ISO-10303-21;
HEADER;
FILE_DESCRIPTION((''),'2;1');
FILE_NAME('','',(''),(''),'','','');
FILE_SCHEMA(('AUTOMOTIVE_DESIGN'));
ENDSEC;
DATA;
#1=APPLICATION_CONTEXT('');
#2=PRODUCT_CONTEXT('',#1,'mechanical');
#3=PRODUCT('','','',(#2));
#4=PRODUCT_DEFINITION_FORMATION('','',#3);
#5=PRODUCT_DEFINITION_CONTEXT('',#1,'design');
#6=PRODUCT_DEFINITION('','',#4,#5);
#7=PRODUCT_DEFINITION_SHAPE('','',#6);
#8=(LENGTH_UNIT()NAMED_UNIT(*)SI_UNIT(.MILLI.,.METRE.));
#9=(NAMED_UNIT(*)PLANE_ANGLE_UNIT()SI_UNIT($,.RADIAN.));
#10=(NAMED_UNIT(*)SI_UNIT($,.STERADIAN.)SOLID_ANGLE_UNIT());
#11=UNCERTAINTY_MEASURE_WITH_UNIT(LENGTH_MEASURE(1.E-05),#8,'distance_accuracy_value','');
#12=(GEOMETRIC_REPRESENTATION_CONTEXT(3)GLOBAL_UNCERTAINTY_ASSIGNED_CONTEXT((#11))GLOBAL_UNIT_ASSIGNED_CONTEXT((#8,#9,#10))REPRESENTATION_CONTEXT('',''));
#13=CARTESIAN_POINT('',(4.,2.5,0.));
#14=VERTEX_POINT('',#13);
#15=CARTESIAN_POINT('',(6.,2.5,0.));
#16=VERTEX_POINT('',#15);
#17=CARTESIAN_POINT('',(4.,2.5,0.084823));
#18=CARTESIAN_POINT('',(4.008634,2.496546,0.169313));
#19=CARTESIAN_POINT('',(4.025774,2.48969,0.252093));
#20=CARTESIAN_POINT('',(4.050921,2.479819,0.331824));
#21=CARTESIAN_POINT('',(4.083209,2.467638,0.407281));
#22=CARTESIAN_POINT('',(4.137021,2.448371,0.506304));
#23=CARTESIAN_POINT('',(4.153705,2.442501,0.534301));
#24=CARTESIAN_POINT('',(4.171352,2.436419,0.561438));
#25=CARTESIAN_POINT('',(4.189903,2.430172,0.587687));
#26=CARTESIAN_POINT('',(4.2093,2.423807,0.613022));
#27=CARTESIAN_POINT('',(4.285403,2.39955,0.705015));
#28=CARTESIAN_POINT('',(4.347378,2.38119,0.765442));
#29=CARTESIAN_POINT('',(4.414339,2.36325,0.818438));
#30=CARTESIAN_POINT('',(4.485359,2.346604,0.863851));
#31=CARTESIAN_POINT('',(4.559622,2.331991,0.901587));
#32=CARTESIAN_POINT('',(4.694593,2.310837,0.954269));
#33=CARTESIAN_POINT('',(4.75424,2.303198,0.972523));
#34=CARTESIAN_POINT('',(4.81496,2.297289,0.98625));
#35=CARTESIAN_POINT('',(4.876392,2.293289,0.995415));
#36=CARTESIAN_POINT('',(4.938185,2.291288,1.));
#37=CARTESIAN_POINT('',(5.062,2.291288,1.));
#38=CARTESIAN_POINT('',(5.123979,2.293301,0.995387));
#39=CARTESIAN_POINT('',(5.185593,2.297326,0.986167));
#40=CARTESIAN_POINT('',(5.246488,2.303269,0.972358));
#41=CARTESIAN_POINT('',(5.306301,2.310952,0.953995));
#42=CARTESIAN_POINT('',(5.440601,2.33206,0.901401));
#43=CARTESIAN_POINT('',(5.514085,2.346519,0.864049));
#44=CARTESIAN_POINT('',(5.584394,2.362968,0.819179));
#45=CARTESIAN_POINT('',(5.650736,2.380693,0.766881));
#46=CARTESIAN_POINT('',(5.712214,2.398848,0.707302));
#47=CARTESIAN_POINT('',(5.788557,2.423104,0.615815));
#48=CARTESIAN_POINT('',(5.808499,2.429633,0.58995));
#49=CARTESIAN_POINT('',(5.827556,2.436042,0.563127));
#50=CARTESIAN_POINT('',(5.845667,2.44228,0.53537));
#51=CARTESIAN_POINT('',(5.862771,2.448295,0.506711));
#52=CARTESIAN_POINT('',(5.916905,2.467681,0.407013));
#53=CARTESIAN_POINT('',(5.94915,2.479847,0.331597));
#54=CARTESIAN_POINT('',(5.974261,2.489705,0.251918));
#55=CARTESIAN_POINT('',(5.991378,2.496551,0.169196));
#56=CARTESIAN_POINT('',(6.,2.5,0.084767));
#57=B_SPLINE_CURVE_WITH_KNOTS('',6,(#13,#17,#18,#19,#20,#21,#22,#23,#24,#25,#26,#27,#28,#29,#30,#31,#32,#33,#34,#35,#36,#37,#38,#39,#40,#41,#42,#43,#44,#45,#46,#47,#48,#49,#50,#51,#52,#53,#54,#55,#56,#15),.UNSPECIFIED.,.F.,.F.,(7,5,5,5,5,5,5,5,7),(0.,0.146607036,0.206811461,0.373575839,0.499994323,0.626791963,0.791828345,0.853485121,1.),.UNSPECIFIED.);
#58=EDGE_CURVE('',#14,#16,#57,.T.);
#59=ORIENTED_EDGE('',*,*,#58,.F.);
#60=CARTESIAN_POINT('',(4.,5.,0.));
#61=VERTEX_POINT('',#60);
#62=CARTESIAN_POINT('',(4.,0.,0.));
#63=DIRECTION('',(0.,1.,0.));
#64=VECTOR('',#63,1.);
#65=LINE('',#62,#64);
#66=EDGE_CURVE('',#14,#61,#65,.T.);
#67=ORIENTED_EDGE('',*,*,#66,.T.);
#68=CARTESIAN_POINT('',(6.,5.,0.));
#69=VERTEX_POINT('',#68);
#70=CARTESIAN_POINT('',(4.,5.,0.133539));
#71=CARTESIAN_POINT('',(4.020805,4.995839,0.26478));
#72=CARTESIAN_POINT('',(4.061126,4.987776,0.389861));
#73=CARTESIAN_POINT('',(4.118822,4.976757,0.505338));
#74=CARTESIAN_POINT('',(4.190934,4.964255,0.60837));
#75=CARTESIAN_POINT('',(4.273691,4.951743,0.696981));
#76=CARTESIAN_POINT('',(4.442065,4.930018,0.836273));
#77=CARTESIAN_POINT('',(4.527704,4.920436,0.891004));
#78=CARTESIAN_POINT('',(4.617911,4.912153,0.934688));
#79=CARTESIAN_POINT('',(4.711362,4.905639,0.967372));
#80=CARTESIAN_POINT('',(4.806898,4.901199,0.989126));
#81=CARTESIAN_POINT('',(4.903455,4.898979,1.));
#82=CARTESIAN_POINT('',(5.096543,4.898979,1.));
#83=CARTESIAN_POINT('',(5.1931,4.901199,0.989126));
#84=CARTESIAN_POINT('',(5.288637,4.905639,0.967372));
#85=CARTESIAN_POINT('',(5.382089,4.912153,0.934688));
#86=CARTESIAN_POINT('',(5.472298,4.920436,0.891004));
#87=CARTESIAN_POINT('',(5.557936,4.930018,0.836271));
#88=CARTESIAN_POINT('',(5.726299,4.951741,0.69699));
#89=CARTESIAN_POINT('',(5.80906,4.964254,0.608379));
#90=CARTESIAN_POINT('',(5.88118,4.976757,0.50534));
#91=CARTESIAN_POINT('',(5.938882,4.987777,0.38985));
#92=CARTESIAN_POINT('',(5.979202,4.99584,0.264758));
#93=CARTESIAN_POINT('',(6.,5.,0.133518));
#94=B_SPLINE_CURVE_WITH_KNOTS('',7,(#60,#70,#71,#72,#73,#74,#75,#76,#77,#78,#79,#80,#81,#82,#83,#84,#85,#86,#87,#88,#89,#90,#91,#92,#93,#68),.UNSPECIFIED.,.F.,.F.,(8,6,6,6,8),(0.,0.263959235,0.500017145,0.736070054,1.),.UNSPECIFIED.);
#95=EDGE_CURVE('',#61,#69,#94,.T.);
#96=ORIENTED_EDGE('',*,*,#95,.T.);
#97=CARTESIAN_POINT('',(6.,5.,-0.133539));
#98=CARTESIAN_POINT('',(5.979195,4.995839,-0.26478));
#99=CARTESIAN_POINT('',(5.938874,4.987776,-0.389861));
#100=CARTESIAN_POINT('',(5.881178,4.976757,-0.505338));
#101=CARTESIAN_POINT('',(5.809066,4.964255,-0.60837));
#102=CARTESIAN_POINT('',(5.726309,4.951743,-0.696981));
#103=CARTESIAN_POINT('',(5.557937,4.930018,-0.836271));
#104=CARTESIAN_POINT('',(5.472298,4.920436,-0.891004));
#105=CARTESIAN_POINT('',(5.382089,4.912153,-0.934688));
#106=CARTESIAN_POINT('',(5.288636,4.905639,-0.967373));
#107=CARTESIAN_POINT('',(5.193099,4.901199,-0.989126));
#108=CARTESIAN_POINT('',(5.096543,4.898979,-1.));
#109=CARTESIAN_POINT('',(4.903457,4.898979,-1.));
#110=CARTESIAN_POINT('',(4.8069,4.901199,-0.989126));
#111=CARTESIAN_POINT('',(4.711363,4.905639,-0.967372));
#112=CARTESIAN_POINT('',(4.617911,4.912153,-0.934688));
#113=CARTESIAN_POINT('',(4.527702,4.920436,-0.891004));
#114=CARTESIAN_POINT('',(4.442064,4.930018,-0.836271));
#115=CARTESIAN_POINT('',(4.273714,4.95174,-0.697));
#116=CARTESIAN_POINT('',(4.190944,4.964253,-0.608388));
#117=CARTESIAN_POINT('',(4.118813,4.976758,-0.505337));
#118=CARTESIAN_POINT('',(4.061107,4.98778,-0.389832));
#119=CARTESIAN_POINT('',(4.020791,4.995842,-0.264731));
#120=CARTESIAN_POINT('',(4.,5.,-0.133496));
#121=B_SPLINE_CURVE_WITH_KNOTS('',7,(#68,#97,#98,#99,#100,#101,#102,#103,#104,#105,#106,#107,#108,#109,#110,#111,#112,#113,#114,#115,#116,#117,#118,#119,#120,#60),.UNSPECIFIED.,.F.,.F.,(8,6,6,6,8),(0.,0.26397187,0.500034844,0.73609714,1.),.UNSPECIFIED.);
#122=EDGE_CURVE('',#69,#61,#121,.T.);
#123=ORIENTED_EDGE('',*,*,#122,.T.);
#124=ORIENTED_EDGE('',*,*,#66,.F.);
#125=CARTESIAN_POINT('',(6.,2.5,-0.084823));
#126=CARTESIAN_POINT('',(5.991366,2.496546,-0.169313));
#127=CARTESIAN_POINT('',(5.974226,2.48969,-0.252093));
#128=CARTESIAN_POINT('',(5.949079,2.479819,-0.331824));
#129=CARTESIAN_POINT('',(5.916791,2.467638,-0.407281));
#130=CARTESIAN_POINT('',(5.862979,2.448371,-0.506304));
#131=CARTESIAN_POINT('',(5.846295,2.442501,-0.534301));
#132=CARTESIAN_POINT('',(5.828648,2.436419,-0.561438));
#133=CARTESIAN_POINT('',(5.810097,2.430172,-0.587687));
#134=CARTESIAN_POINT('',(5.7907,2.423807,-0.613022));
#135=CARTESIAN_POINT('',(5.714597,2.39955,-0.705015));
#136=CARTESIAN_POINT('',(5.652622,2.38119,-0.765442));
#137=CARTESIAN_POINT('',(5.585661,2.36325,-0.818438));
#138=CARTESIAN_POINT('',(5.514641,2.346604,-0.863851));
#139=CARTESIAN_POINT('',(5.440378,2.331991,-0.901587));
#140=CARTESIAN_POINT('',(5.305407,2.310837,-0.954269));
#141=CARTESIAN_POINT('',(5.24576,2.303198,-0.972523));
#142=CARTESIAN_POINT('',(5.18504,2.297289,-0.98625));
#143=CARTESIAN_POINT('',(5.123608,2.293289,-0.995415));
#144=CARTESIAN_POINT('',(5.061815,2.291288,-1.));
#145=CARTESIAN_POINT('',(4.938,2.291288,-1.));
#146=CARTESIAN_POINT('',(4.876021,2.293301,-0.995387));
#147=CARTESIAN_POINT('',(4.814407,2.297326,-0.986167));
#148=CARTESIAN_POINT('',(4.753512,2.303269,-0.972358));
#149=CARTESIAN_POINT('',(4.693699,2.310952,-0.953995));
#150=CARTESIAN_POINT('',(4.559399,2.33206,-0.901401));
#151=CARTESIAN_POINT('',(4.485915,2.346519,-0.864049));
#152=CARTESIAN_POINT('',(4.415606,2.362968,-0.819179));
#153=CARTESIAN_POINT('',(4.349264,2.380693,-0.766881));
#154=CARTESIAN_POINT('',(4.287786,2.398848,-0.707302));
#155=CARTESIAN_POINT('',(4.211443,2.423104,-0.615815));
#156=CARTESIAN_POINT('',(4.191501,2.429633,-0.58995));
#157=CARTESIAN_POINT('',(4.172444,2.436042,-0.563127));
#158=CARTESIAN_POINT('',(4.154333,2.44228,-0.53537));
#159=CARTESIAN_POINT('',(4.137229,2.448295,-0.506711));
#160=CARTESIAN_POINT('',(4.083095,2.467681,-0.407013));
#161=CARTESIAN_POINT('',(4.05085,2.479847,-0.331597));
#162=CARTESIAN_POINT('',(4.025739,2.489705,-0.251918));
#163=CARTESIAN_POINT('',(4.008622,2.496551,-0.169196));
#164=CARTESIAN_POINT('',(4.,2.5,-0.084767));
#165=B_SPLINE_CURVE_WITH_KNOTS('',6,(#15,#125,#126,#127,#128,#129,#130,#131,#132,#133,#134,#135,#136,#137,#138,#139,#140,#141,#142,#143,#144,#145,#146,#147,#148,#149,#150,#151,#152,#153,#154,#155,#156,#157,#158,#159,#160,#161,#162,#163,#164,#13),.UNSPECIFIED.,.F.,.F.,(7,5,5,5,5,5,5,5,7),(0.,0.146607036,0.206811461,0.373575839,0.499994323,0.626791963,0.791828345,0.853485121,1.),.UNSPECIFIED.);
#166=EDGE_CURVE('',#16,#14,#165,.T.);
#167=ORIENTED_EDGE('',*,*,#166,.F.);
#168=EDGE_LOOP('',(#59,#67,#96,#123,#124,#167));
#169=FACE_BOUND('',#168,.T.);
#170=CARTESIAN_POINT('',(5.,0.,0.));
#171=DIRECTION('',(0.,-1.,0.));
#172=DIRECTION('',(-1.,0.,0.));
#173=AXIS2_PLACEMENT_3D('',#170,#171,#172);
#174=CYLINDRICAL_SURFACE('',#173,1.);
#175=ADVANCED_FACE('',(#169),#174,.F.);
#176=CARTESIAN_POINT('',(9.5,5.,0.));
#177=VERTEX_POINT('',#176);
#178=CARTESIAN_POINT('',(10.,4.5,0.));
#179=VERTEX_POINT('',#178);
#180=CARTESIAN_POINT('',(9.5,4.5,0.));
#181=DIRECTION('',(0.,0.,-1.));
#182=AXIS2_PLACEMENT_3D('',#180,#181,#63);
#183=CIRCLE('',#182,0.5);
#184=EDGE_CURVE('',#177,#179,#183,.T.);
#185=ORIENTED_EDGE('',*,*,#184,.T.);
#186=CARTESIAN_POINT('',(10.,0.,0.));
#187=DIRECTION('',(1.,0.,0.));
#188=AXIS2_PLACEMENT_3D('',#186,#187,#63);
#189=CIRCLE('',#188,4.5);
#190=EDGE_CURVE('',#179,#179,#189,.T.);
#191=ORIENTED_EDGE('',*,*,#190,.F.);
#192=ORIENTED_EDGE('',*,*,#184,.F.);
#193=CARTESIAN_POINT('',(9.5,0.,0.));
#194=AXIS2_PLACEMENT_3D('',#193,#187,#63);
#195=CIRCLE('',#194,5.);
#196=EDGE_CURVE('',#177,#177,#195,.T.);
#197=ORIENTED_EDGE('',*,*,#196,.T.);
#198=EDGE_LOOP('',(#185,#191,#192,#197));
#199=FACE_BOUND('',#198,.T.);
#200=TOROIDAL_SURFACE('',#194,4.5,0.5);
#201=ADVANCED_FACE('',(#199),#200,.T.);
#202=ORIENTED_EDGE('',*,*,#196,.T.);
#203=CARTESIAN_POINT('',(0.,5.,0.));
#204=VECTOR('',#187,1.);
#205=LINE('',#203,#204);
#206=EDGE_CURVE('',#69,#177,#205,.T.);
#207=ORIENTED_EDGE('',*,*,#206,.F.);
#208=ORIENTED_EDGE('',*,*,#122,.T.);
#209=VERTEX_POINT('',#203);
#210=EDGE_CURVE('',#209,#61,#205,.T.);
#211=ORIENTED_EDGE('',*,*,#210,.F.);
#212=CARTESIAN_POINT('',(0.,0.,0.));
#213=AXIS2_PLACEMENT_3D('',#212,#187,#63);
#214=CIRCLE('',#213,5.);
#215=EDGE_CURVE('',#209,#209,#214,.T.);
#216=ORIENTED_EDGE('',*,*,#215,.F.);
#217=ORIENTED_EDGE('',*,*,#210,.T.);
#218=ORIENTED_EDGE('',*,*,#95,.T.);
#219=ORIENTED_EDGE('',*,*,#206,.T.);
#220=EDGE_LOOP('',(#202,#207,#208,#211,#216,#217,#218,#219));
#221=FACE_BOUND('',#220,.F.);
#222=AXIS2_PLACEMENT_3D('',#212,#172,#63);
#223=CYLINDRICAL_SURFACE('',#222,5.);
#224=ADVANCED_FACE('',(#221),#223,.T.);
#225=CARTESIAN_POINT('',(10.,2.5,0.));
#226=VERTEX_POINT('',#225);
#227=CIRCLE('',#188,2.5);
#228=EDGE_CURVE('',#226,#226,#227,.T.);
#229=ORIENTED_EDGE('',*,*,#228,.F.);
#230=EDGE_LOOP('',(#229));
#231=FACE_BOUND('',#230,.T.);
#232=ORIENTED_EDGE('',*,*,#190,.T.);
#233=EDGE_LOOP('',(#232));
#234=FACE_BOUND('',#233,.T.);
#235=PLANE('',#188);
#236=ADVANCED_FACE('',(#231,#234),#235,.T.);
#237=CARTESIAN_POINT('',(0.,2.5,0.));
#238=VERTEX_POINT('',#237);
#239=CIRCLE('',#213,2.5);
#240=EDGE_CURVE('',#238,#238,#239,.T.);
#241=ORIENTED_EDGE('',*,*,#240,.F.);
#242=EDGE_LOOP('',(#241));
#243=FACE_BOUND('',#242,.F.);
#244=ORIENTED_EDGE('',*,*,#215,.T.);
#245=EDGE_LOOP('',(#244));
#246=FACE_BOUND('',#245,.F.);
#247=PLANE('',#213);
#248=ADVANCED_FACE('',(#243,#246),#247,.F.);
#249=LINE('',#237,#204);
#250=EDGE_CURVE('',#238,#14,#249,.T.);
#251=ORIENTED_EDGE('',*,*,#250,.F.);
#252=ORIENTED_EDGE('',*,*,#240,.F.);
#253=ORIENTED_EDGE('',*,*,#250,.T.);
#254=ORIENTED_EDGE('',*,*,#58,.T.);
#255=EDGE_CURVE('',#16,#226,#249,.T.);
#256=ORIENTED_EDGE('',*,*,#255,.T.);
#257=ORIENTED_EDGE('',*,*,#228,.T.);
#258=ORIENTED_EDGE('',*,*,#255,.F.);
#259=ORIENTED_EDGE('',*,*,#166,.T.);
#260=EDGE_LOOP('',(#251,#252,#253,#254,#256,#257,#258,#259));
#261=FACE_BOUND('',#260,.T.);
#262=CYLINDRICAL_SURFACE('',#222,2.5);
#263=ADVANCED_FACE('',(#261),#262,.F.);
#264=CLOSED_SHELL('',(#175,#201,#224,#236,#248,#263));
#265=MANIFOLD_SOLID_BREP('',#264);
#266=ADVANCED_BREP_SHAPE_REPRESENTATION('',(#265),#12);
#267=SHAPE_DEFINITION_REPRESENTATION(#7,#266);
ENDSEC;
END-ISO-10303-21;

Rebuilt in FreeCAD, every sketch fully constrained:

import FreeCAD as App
import Part
import Sketcher

V = App.Vector


def edges_at(feature, points):
    """Names of the edges that pass closest to the given points."""
    edges = feature.Shape.Edges
    near = lambda p: min(range(len(edges)), key=lambda i: edges[i].distToShape(Part.Vertex(*p))[0])
    return sorted({f"Edge{near(p) + 1}" for p in points})

doc = App.newDocument("Part")
params = doc.addObject("Spreadsheet::Sheet", "Params")
for row, (alias, value) in enumerate([
    ("sketch1_diameter", "10 mm"),
    ("sketch1_diameter2", "5 mm"),
    ("pad1_length", "10 mm"),
    ("sketch2_diameter", "2 mm"),
    ("pocket1_length", "10 mm"),
    ("fillet_radius", "0.5 mm"),
], start=1):
    params.set(f"A{row}", alias)
    params.set(f"B{row}", "=" + value)
    params.setAlias(f"B{row}", alias)

body = doc.addObject("PartDesign::Body", "Body")

sketch1 = doc.addObject("Sketcher::SketchObject", "Sketch")
body.addObject(sketch1)
sketch1.AttachmentSupport = (doc.YZ_Plane, [""])
sketch1.MapMode = "FlatFace"
sketch1.addGeometry(Part.Circle(V(0, 0, 0), V(0, 0, 1), 5), False)
sketch1.addGeometry(Part.Circle(V(0, 0, 0), V(0, 0, 1), 2.5), False)
sketch1.addConstraint(Sketcher.Constraint("Coincident", 0, 3, -1, 1))
sketch1.addConstraint(Sketcher.Constraint("Coincident", 1, 3, -1, 1))
sketch1.addConstraint(Sketcher.Constraint("Diameter", 0, 10.0))
sketch1.addConstraint(Sketcher.Constraint("Diameter", 1, 5.0))
sketch1.setExpression("Constraints[2]", "Params.sketch1_diameter")
sketch1.setExpression("Constraints[3]", "Params.sketch1_diameter2")
pad1 = doc.addObject("PartDesign::Pad", "Pad")
body.addObject(pad1)
pad1.Profile = sketch1
pad1.setExpression("Length", "Params.pad1_length")

sketch2 = doc.addObject("Sketcher::SketchObject", "Sketch001")
body.addObject(sketch2)
sketch2.AttachmentSupport = (doc.XZ_Plane, [""])
sketch2.MapMode = "FlatFace"
sketch2.addGeometry(Part.Circle(V(5, 0, 0), V(0, 0, 1), 1), False)
sketch2.addConstraint(Sketcher.Constraint("PointOnObject", 0, 3, -1))
sketch2.addConstraint(Sketcher.Constraint("Diameter", 0, 2.0))
sketch2.addConstraint(Sketcher.Constraint("DistanceX", -1, 1, 0, 3, 5.0))
sketch2.setExpression("Constraints[1]", "Params.sketch2_diameter")
pocket1 = doc.addObject("PartDesign::Pocket", "Pocket")
body.addObject(pocket1)
pocket1.Profile = sketch2
pocket1.setExpression("Length", "Params.pocket1_length")
doc.recompute()

fillet = doc.addObject("PartDesign::Fillet", "Fillet")
body.addObject(fillet)
fillet.Base = (pocket1, edges_at(pocket1, [(10, -5, 0)]))
fillet.setExpression("Radius", "Params.fillet_radius")

doc.recompute()
